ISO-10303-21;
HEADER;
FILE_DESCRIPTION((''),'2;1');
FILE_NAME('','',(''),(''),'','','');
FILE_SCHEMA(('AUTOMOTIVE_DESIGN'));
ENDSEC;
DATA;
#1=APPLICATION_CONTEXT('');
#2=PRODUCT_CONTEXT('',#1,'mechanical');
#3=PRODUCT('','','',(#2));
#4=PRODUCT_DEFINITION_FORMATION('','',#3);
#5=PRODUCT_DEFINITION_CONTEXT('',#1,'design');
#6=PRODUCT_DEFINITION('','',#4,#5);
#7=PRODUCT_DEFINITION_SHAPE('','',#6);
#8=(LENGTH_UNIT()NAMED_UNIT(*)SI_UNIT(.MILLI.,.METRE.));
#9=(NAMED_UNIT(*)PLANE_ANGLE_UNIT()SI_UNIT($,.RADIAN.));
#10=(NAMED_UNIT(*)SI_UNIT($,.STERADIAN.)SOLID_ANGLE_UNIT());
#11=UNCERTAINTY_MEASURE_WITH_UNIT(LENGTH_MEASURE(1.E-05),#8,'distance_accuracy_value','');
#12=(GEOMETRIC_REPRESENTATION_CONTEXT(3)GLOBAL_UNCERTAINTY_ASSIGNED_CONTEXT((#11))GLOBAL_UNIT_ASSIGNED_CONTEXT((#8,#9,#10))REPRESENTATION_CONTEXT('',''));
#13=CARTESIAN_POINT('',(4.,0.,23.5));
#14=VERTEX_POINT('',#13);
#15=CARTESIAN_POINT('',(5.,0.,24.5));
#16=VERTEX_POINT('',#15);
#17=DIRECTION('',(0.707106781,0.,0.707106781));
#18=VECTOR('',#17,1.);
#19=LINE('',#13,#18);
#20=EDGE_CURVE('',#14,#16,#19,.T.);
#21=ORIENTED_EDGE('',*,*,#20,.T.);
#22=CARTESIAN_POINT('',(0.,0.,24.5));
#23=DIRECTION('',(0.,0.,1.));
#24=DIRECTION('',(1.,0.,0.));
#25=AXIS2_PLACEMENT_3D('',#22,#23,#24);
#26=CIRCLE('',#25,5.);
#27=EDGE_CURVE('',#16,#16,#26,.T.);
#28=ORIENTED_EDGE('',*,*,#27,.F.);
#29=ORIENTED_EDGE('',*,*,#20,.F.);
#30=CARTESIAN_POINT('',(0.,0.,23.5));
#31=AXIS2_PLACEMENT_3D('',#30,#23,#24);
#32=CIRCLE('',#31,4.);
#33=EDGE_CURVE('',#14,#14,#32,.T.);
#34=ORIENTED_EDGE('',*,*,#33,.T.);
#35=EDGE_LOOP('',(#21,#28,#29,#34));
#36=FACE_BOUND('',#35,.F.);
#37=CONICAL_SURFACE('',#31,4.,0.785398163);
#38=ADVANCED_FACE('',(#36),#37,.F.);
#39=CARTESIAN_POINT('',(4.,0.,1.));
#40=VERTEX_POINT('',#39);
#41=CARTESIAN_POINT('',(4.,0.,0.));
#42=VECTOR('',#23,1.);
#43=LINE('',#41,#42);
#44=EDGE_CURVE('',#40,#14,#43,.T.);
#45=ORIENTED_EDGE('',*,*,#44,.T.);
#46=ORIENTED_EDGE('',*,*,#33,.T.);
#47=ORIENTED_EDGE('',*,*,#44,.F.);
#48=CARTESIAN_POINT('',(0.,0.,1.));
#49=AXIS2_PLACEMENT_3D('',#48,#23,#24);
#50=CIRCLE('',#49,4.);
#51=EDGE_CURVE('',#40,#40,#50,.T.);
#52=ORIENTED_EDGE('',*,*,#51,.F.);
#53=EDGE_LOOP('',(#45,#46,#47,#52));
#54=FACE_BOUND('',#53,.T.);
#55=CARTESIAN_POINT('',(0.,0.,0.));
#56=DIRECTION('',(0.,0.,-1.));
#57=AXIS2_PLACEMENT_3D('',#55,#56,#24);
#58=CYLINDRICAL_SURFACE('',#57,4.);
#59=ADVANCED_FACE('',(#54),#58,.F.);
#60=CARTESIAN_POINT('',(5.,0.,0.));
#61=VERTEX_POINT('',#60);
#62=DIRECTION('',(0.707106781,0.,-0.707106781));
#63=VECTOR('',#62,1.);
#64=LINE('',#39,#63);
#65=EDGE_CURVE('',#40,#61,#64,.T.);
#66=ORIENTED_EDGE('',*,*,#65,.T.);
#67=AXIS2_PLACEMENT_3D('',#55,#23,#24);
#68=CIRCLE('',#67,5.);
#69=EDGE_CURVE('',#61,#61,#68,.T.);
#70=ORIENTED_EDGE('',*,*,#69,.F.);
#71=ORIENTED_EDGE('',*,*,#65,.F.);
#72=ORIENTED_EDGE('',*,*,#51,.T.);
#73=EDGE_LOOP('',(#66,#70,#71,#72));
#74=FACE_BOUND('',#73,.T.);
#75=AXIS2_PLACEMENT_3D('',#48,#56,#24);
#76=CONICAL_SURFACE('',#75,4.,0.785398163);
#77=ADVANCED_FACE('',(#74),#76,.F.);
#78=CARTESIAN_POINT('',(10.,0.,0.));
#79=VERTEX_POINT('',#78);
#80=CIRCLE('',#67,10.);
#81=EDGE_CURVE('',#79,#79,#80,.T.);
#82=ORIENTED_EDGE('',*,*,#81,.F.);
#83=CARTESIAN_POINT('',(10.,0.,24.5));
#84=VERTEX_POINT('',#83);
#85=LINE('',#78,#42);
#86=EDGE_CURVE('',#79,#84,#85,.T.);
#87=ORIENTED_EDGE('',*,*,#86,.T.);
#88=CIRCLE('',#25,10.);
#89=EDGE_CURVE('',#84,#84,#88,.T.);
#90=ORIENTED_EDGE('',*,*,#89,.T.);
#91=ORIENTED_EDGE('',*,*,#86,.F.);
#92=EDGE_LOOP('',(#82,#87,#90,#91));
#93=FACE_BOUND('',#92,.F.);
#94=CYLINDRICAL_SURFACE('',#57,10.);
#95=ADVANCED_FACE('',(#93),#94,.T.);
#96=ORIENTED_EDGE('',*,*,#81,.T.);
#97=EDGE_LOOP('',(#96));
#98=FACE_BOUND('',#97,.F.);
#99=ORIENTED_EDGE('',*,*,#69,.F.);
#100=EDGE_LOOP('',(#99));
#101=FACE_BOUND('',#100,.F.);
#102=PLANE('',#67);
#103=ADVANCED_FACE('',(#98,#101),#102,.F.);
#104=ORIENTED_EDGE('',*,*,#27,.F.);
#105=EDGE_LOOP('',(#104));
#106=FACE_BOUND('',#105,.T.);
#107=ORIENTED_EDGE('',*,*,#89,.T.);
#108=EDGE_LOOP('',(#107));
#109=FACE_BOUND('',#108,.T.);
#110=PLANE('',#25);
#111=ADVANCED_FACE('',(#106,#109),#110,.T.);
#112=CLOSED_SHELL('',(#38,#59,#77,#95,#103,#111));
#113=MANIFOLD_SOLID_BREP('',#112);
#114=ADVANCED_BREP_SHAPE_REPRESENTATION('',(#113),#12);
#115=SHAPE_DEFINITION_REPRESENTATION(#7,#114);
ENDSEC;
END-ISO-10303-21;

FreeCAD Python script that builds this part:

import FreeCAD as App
import Part
import Sketcher
from FreeCAD import Vector
Q = App.Units.Quantity


def edges_at(feature, points):
    """Names of the edges that pass closest to the given points."""
    edges = feature.Shape.Edges
    near = lambda p: min(range(len(edges)), key=lambda i: edges[i].distToShape(Part.Vertex(*p))[0])
    return sorted({f"Edge{near(p) + 1}" for p in points})

doc = App.newDocument("Part")
body = doc.addObject("PartDesign::Body", "Body")

# Sketch on XY plane
sketch1 = body.newObject("Sketcher::SketchObject", "Sketch")
sketch1.AttachmentSupport = (doc.getObject("XY_Plane"), [""])
sketch1.MapMode = "FlatFace"
sketch1.addGeometry([
    Part.Circle(Vector(0, 0, 0), Vector(0, 0, 1), 10),
    Part.Circle(Vector(0, 0, 0), Vector(0, 0, 1), 4),
], False)
sketch1.addConstraint([
    Sketcher.Constraint("Coincident", 0, 3, -1, 1),
    Sketcher.Constraint("Coincident", 1, 3, -1, 1),
    Sketcher.Constraint("Diameter", 0, Q("20 mm")),
    Sketcher.Constraint("Diameter", 1, Q("8 mm")),
])
pad1 = body.newObject("PartDesign::Pad", "Pad")
pad1.Profile = sketch1
pad1.Length = 24.5
doc.recompute()

chamfer = body.newObject("PartDesign::Chamfer", "Chamfer")
chamfer.Base = (pad1, edges_at(pad1, [(-4, 0, 24.5), (-4, 0, 0)]))
chamfer.Size = 1

doc.recompute()
